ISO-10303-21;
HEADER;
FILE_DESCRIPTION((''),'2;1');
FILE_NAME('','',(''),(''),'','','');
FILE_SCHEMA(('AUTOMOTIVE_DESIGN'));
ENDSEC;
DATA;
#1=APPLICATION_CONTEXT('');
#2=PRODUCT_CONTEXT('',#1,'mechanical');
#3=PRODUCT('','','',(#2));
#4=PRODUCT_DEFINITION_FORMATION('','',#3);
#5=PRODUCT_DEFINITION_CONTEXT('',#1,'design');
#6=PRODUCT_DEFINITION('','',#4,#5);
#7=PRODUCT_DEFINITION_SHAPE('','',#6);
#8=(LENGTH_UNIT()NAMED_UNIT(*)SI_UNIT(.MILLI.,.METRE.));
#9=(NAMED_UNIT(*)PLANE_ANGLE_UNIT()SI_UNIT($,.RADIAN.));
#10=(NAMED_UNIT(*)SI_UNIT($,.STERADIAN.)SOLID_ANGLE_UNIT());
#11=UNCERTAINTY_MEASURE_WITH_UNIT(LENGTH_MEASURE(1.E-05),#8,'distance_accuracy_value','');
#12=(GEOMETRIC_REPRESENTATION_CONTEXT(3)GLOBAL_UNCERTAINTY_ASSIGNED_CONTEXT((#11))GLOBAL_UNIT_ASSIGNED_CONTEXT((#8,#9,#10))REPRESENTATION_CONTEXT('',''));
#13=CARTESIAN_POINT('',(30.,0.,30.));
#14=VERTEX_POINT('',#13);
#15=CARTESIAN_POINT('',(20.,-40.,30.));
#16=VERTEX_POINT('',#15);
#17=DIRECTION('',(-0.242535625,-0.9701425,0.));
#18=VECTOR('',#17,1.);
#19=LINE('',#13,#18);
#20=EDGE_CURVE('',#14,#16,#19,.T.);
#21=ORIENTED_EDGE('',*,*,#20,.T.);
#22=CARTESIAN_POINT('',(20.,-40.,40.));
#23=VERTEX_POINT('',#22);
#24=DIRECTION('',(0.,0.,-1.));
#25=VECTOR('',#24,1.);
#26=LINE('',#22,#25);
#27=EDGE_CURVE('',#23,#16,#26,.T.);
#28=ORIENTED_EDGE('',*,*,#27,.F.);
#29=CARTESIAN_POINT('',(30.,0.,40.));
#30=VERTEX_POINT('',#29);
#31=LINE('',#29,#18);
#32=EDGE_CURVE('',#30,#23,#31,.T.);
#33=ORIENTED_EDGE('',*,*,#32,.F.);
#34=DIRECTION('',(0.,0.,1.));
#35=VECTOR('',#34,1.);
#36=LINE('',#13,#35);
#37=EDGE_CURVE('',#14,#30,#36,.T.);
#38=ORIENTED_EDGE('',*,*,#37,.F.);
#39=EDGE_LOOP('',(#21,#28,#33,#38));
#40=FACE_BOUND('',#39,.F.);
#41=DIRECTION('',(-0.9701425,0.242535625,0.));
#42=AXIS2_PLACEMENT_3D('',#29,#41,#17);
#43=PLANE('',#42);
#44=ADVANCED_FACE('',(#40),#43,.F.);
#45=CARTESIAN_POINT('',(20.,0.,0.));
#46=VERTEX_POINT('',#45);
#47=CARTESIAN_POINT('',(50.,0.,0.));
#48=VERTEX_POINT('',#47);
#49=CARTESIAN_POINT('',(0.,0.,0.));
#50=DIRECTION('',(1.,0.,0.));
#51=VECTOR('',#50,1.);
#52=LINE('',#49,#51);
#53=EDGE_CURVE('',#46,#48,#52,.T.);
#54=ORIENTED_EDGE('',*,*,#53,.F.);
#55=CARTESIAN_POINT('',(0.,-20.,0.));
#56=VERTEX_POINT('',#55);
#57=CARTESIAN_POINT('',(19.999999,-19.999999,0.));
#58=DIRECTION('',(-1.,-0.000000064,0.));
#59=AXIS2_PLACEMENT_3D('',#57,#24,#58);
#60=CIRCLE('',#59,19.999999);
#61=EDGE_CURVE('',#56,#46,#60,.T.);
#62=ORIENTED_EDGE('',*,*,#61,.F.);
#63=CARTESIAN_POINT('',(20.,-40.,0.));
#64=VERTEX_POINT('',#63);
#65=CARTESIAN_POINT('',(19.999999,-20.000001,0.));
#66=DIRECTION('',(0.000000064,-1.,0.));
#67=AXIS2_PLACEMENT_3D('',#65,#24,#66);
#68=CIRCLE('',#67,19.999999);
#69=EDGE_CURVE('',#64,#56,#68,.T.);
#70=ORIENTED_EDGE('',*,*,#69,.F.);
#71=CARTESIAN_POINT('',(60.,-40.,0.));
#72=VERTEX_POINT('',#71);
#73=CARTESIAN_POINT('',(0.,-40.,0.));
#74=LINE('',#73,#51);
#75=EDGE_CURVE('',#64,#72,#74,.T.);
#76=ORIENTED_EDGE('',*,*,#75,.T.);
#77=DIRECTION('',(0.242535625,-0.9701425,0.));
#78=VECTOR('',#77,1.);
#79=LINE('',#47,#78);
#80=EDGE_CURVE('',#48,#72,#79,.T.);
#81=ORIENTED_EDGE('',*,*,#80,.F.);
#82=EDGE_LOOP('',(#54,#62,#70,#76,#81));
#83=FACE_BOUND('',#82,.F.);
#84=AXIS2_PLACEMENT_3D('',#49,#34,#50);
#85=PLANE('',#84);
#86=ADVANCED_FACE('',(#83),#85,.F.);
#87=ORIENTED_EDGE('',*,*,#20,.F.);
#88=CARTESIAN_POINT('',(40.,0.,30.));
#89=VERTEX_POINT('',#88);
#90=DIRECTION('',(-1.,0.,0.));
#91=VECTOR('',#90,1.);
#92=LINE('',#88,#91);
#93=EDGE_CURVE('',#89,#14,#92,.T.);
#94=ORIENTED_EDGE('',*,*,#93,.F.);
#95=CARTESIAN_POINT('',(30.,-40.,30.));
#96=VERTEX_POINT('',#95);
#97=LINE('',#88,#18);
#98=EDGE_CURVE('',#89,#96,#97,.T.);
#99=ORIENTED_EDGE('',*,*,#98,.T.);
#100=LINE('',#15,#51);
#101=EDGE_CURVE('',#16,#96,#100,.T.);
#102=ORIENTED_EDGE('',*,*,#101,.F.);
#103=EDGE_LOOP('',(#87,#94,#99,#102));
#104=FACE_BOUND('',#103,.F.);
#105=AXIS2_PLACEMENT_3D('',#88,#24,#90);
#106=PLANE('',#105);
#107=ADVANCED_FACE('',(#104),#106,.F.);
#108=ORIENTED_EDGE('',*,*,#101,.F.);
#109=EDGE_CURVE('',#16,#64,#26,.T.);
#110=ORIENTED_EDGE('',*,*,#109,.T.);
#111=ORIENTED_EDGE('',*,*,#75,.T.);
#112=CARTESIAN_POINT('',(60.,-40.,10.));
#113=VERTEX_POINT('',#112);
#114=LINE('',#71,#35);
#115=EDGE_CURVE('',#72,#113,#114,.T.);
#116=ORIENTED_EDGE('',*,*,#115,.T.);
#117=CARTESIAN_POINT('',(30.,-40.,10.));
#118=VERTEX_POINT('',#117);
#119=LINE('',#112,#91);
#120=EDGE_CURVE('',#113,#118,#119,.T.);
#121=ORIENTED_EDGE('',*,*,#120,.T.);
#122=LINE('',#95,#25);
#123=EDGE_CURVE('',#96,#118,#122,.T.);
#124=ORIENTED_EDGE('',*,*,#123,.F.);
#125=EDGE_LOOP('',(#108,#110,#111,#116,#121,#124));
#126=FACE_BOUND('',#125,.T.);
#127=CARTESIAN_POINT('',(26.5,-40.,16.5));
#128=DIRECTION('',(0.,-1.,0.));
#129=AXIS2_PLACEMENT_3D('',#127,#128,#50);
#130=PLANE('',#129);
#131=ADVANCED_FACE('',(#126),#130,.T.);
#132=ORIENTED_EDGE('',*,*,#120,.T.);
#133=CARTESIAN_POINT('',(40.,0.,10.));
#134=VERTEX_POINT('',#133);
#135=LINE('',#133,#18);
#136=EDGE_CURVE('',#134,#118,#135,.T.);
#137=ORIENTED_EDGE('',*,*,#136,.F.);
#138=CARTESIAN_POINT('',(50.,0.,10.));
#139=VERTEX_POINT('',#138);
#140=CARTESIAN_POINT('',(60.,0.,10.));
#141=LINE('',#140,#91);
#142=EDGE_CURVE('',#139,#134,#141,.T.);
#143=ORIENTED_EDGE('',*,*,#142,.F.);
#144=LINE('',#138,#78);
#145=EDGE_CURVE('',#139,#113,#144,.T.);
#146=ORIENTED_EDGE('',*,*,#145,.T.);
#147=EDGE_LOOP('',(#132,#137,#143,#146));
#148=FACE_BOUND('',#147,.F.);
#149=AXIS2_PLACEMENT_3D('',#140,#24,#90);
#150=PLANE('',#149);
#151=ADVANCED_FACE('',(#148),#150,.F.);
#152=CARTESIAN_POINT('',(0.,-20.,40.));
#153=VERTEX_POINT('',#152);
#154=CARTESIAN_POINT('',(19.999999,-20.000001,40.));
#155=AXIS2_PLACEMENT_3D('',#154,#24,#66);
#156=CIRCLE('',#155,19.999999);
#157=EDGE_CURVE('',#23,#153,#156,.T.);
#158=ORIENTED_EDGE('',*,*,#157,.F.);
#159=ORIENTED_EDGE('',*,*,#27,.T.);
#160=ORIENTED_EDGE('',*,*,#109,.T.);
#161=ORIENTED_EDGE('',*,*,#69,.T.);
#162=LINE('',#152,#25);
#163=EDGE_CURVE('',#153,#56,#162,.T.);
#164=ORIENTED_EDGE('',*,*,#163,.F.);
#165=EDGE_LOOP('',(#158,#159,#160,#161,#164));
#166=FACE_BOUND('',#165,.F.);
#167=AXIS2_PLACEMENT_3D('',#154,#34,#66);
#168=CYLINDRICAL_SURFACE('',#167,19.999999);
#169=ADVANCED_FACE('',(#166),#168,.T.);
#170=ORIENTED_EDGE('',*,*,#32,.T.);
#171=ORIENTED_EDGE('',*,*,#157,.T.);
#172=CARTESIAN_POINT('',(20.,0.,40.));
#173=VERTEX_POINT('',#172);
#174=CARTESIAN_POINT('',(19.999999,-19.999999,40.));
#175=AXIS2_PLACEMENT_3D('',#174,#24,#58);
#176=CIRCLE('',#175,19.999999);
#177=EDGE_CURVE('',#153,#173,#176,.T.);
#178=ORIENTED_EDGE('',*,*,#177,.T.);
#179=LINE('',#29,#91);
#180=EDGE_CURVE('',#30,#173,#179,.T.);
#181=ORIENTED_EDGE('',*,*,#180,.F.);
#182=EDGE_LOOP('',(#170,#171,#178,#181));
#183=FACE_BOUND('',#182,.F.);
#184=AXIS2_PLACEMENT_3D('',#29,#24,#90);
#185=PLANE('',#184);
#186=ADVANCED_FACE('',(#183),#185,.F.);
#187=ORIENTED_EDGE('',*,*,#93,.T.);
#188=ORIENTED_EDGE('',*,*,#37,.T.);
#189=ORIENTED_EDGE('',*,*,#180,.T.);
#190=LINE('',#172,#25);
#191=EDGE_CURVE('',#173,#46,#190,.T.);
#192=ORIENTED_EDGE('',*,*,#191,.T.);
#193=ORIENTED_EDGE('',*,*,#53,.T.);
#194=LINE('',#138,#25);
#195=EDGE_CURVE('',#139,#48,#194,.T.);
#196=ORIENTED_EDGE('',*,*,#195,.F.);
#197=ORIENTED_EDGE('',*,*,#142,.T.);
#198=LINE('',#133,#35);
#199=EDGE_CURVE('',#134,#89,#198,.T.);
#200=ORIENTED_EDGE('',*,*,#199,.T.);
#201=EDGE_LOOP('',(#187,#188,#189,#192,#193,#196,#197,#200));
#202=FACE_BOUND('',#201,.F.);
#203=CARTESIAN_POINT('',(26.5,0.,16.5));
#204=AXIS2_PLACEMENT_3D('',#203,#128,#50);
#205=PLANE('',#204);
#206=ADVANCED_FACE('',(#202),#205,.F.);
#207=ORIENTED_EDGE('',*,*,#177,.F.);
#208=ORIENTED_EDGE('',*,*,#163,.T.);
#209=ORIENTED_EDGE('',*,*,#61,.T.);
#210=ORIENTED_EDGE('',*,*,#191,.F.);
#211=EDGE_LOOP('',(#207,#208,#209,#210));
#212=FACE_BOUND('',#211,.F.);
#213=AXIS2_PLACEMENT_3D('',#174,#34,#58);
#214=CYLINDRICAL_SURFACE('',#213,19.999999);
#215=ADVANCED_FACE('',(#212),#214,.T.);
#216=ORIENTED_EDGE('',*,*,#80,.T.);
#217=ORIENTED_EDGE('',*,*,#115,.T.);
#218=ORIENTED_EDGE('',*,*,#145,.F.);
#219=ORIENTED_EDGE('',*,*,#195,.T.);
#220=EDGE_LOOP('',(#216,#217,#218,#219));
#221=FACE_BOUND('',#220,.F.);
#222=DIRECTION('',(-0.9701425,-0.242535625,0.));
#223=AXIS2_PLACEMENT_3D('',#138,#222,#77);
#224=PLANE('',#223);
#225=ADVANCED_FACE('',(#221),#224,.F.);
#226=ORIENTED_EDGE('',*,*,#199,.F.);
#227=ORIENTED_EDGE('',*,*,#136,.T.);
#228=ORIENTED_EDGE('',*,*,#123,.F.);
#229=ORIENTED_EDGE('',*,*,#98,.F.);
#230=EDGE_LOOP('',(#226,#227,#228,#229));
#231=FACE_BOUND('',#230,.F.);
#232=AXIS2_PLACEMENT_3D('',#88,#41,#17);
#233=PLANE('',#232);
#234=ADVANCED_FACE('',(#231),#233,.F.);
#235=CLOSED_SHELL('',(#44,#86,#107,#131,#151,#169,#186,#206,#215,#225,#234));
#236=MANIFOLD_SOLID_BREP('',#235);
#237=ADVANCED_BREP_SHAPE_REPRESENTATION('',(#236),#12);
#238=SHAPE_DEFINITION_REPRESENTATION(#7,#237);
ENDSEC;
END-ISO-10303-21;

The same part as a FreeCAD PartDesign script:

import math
import FreeCAD as App
import Part
import Sketcher

V = App.Vector
Q = App.Units.Quantity

doc = App.newDocument("Part")
body = doc.addObject("PartDesign::Body", "Body")

sketch1 = body.newObject("Sketcher::SketchObject", "Sketch")
sketch1.AttachmentSupport = (doc.getObject("XZ_Plane"), [""])
sketch1.MapMode = "FlatFace"
sketch1.addGeometry([
    Part.LineSegment(V(0, 40, 0), V(0, 0, 0)),
    Part.LineSegment(V(0, 0, 0), V(60, 0, 0)),
    Part.LineSegment(V(60, 0, 0), V(60, 10, 0)),
    Part.LineSegment(V(60, 10, 0), V(40, 10, 0)),
    Part.LineSegment(V(40, 10, 0), V(40, 30, 0)),
    Part.LineSegment(V(40, 30, 0), V(30, 30, 0)),
    Part.LineSegment(V(30, 30, 0), V(30, 40, 0)),
    Part.LineSegment(V(30, 40, 0), V(0, 40, 0)),
], False)
sketch1.addConstraint([
    Sketcher.Constraint("Coincident", 0, 2, 1, 1),
    Sketcher.Constraint("Coincident", 1, 2, 2, 1),
    Sketcher.Constraint("Coincident", 2, 2, 3, 1),
    Sketcher.Constraint("Coincident", 3, 2, 4, 1),
    Sketcher.Constraint("Coincident", 4, 2, 5, 1),
    Sketcher.Constraint("Coincident", 5, 2, 6, 1),
    Sketcher.Constraint("Coincident", 6, 2, 7, 1),
    Sketcher.Constraint("Coincident", 7, 2, 0, 1),
    Sketcher.Constraint("Vertical", 0),
    Sketcher.Constraint("Horizontal", 1),
    Sketcher.Constraint("Vertical", 2),
    Sketcher.Constraint("Horizontal", 3),
    Sketcher.Constraint("Vertical", 4),
    Sketcher.Constraint("Horizontal", 5),
    Sketcher.Constraint("Vertical", 6),
    Sketcher.Constraint("Horizontal", 7),
    Sketcher.Constraint("Coincident", 0, 2, -1, 1),
    Sketcher.Constraint("Equal", 5, 2),
    Sketcher.Constraint("Equal", 3, 4),
    Sketcher.Constraint("Equal", 2, 6),
    Sketcher.Constraint("DistanceX", 1, 1, 1, 2, Q("60 mm")),
    Sketcher.Constraint("DistanceX", 3, 2, 3, 1, Q("20 mm")),
    Sketcher.Constraint("DistanceX", 5, 2, 5, 1, Q("10 mm")),
])
pad1 = body.newObject("PartDesign::Pad", "Pad")
pad1.Profile = sketch1
pad1.Length = 40

sketch2 = body.newObject("Sketcher::SketchObject", "Sketch001")
sketch2.AttachmentSupport = (doc.getObject("XY_Plane"), [""])
sketch2.MapMode = "FlatFace"
sketch2.AttachmentOffset = App.Placement(V(0, 0, 30), App.Rotation())
sketch2.addGeometry([
    Part.LineSegment(V(40, -40, 0), V(40, 0, 0)),
    Part.LineSegment(V(40, 0, 0), V(30, -40, 0)),
    Part.LineSegment(V(30, -40, 0), V(40, -40, 0)),
], False)
sketch2.addConstraint([
    Sketcher.Constraint("Coincident", 0, 2, 1, 1),
    Sketcher.Constraint("Coincident", 1, 2, 2, 1),
    Sketcher.Constraint("Coincident", 2, 2, 0, 1),
    Sketcher.Constraint("Vertical", 0),
    Sketcher.Constraint("Horizontal", 2),
    Sketcher.Constraint("PointOnObject", 0, 2, -1),
    Sketcher.Constraint("DistanceX", 2, 1, 2, 2, Q("10 mm")),
    Sketcher.Constraint("DistanceY", 0, 1, 0, 2, Q("40 mm")),
    Sketcher.Constraint("DistanceX", -1, 1, 0, 2, Q("40 mm")),
])
pocket1 = body.newObject("PartDesign::Pocket", "Pocket")
pocket1.Profile = sketch2
pocket1.Length = 20

sketch3 = body.newObject("Sketcher::SketchObject", "Sketch002")
sketch3.AttachmentSupport = (doc.getObject("XY_Plane"), [""])
sketch3.MapMode = "FlatFace"
sketch3.AttachmentOffset = App.Placement(V(0, 0, 10), App.Rotation())
sketch3.addGeometry([
    Part.LineSegment(V(60, 0, 0), V(50, 0, 0)),
    Part.LineSegment(V(50, 0, 0), V(60, -40, 0)),
    Part.LineSegment(V(60, -40, 0), V(60, 0, 0)),
], False)
sketch3.addConstraint([
    Sketcher.Constraint("Coincident", 0, 2, 1, 1),
    Sketcher.Constraint("Coincident", 1, 2, 2, 1),
    Sketcher.Constraint("Coincident", 2, 2, 0, 1),
    Sketcher.Constraint("Horizontal", 0),
    Sketcher.Constraint("Vertical", 2),
    Sketcher.Constraint("PointOnObject", 0, 2, -1),
    Sketcher.Constraint("DistanceX", 0, 2, 0, 1, Q("10 mm")),
    Sketcher.Constraint("DistanceY", 2, 1, 2, 2, Q("40 mm")),
    Sketcher.Constraint("DistanceX", -1, 1, 0, 2, Q("50 mm")),
])
pocket2 = body.newObject("PartDesign::Pocket", "Pocket001")
pocket2.Profile = sketch3
pocket2.Length = 10

sketch4 = body.newObject("Sketcher::SketchObject", "Sketch003")
sketch4.AttachmentSupport = (doc.getObject("XY_Plane"), [""])
sketch4.MapMode = "FlatFace"
sketch4.AttachmentOffset = App.Placement(V(0, 0, 40), App.Rotation())
sketch4.addGeometry([
    Part.LineSegment(V(30, -40, 0), V(30, 0, 0)),
    Part.LineSegment(V(30, 0, 0), V(20, -40, 0)),
    Part.LineSegment(V(20, -40, 0), V(30, -40, 0)),
], False)
sketch4.addConstraint([
    Sketcher.Constraint("Coincident", 0, 2, 1, 1),
    Sketcher.Constraint("Coincident", 1, 2, 2, 1),
    Sketcher.Constraint("Coincident", 2, 2, 0, 1),
    Sketcher.Constraint("Vertical", 0),
    Sketcher.Constraint("Horizontal", 2),
    Sketcher.Constraint("PointOnObject", 0, 2, -1),
    Sketcher.Constraint("DistanceX", 2, 1, 2, 2, Q("10 mm")),
    Sketcher.Constraint("DistanceY", 0, 1, 0, 2, Q("40 mm")),
    Sketcher.Constraint("DistanceX", -1, 1, 0, 2, Q("30 mm")),
])
pocket3 = body.newObject("PartDesign::Pocket", "Pocket002")
pocket3.Profile = sketch4
pocket3.Length = 10

sketch5 = body.newObject("Sketcher::SketchObject", "Sketch004")
sketch5.AttachmentSupport = (doc.getObject("XY_Plane"), [""])
sketch5.MapMode = "FlatFace"
sketch5.AttachmentOffset = App.Placement(V(0, 0, 40), App.Rotation())
sketch5.addGeometry([
    Part.ArcOfCircle(Part.Circle(V(19.999999, -20.000001, 0), V(0, 0, 1), 19.999999), math.radians(179.999996), math.radians(270.000004)),
    Part.LineSegment(V(0, -20, 0), V(0, -40, 0)),
    Part.LineSegment(V(0, -40, 0), V(20, -40, 0)),
    Part.ArcOfCircle(Part.Circle(V(19.999999, -19.999999, 0), V(0, 0, 1), 19.999999), math.radians(89.999996), math.radians(180.000004)),
    Part.LineSegment(V(20, 0, 0), V(0, 0, 0)),
    Part.LineSegment(V(0, 0, 0), V(0, -20, 0)),
], False)
sketch5.addConstraint([
    Sketcher.Constraint("Tangent", 0, 1, 1, 1),
    Sketcher.Constraint("Coincident", 1, 2, 2, 1),
    Sketcher.Constraint("Tangent", 2, 2, 0, 2),
    Sketcher.Constraint("Tangent", 3, 1, 4, 1),
    Sketcher.Constraint("Coincident", 4, 2, 5, 1),
    Sketcher.Constraint("Tangent", 5, 2, 3, 2),
    Sketcher.Constraint("Vertical", 1),
    Sketcher.Constraint("Horizontal", 2),
    Sketcher.Constraint("Horizontal", 4),
    Sketcher.Constraint("Vertical", 5),
    Sketcher.Constraint("Coincident", 4, 2, -1, 1),
    Sketcher.Constraint("Coincident", 3, 3, 0, 3),
    Sketcher.Constraint("Equal", 0, 3),
    Sketcher.Constraint("Radius", 0, Q("19.999999 mm")),
])
pocket4 = body.newObject("PartDesign::Pocket", "Pocket003")
pocket4.Profile = sketch5
pocket4.Length = 40

doc.recompute()
